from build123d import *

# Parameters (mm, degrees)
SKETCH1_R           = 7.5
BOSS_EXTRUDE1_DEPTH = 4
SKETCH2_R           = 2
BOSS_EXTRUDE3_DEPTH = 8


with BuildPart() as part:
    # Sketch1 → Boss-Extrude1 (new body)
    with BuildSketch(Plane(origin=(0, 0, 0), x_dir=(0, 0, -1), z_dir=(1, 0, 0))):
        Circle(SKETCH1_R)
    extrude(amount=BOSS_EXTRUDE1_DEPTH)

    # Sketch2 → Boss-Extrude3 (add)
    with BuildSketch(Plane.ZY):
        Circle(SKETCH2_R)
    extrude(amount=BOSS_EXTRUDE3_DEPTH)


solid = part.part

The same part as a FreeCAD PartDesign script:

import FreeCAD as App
import Part
import Sketcher

V = App.Vector

doc = App.newDocument("Part")
body = doc.addObject("PartDesign::Body", "Body")

# Sketch on YZ plane
sketch1 = body.newObject("Sketcher::SketchObject", "Sketch")
sketch1.AttachmentSupport = (doc.getObject("YZ_Plane"), [""])
sketch1.MapMode = "FlatFace"
sketch1.addGeometry(Part.Circle(V(0, 0, 0), V(0, 0, 1), 7.5), False)
sketch1.addConstraint([
    Sketcher.Constraint("Coincident", 0, 3, -1, 1),
    Sketcher.Constraint("Diameter", 0, 15.0),
])
pad1 = body.newObject("PartDesign::Pad", "Pad")
pad1.Profile = sketch1
pad1.Length = 4

# Sketch on YZ plane
sketch2 = body.newObject("Sketcher::SketchObject", "Sketch001")
sketch2.AttachmentSupport = (doc.getObject("YZ_Plane"), [""])
sketch2.MapMode = "FlatFace"
sketch2.addGeometry(Part.Circle(V(0, 0, 0), V(0, 0, 1), 2), False)
sketch2.addConstraint([
    Sketcher.Constraint("Coincident", 0, 3, -1, 1),
    Sketcher.Constraint("Diameter", 0, 4.0),
])
pad2 = body.newObject("PartDesign::Pad", "Pad001")
pad2.Profile = sketch2
pad2.Length = 8
pad2.Reversed = True

doc.recompute()
